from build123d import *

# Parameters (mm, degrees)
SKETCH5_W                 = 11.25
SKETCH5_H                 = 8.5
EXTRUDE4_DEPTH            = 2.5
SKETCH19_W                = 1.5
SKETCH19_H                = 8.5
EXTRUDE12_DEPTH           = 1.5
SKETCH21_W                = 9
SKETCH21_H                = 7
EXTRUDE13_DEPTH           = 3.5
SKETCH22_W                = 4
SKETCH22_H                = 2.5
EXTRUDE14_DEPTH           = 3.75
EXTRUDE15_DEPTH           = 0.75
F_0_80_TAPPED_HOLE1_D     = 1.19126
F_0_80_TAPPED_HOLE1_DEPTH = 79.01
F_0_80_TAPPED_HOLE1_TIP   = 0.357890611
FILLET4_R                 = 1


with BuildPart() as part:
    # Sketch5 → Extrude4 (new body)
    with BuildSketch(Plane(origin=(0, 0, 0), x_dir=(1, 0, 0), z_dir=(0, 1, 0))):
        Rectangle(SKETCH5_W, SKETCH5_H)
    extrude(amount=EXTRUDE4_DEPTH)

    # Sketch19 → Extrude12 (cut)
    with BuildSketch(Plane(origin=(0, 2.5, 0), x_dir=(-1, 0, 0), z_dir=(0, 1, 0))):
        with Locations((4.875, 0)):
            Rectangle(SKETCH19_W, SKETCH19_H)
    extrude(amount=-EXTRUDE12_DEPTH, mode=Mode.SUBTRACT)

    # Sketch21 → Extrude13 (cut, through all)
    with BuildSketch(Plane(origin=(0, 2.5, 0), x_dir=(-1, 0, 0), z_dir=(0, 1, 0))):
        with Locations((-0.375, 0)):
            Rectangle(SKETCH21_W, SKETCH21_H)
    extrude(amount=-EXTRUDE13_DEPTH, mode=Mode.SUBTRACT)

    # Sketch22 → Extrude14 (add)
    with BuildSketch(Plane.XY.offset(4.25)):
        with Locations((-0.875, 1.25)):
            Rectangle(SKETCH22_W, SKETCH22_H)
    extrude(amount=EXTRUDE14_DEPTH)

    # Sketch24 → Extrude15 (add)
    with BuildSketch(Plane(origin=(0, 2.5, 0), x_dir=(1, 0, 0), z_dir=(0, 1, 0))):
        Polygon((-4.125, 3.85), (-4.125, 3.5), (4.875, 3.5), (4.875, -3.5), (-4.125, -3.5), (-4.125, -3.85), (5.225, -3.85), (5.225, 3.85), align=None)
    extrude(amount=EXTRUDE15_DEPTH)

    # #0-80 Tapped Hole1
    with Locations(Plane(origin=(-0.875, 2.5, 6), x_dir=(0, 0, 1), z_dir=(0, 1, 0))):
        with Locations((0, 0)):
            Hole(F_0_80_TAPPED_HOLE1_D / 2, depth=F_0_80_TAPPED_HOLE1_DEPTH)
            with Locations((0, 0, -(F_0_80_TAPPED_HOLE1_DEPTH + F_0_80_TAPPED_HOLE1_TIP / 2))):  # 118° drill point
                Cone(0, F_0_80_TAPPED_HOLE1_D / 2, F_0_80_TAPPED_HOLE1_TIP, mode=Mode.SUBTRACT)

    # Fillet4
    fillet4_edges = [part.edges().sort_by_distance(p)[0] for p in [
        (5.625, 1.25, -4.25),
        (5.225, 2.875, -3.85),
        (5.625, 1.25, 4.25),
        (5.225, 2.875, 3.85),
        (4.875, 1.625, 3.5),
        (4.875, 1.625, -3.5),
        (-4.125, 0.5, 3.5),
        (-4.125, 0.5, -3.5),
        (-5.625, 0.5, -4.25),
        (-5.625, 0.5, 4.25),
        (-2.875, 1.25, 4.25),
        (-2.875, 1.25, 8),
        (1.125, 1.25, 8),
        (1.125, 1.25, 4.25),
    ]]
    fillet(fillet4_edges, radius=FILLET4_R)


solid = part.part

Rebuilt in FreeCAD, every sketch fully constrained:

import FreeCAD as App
import Part
import Sketcher
Q = App.Units.Quantity


def edges_at(feature, points):
    """Names of the edges that pass closest to the given points."""
    edges = feature.Shape.Edges
    near = lambda p: min(range(len(edges)), key=lambda i: edges[i].distToShape(Part.Vertex(*p))[0])
    return sorted({f"Edge{near(p) + 1}" for p in points})

doc = App.newDocument("Part")
body = doc.addObject("PartDesign::Body", "Body")

sketch1 = doc.addObject("Sketcher::SketchObject", "Sketch")
body.addObject(sketch1)
sketch1.AttachmentSupport = (doc.XZ_Plane, [""])
sketch1.MapMode = "FlatFace"
sketch1.addGeometry(Part.LineSegment(App.Vector(-6, -4, 0), App.Vector(-6, 4, 0)), False)
sketch1.addGeometry(Part.LineSegment(App.Vector(-6, 4, 0), App.Vector(6, 4, 0)), False)
sketch1.addGeometry(Part.LineSegment(App.Vector(6, 4, 0), App.Vector(6, -4, 0)), False)
sketch1.addGeometry(Part.LineSegment(App.Vector(6, -4, 0), App.Vector(-6, -4, 0)), False)
sketch1.addConstraint(Sketcher.Constraint("Coincident", 0, 2, 1, 1))
sketch1.addConstraint(Sketcher.Constraint("Coincident", 1, 2, 2, 1))
sketch1.addConstraint(Sketcher.Constraint("Coincident", 2, 2, 3, 1))
sketch1.addConstraint(Sketcher.Constraint("Coincident", 3, 2, 0, 1))
sketch1.addConstraint(Sketcher.Constraint("Vertical", 0))
sketch1.addConstraint(Sketcher.Constraint("Horizontal", 1))
sketch1.addConstraint(Sketcher.Constraint("Vertical", 2))
sketch1.addConstraint(Sketcher.Constraint("Horizontal", 3))
sketch1.addConstraint(Sketcher.Constraint("Symmetric", 0, 2, 2, 2, -1, 1))
sketch1.addConstraint(Sketcher.Constraint("DistanceY", 0, 1, 0, 2, Q("8.5 mm")))
sketch1.addConstraint(Sketcher.Constraint("DistanceX", 1, 1, 1, 2, Q("11.25 mm")))
pad1 = doc.addObject("PartDesign::Pad", "Pad")
body.addObject(pad1)
pad1.Profile = sketch1
pad1.Length = 2.5
pad1.Reversed = True

sketch2 = doc.addObject("Sketcher::SketchObject", "Sketch001")
body.addObject(sketch2)
sketch2.AttachmentSupport = (doc.XZ_Plane, [""])
sketch2.MapMode = "FlatFace"
sketch2.AttachmentOffset = App.Placement(App.Vector(0, 0, -2.5), App.Rotation())
sketch2.addGeometry(Part.LineSegment(App.Vector(-4.1, 4.2, 0), App.Vector(-4.1, -4.2, 0)), False)
sketch2.addGeometry(Part.LineSegment(App.Vector(-4.1, -4.2, 0), App.Vector(-5.6, -4.2, 0)), False)
sketch2.addGeometry(Part.LineSegment(App.Vector(-5.6, -4.2, 0), App.Vector(-5.6, 4.2, 0)), False)
sketch2.addGeometry(Part.LineSegment(App.Vector(-5.6, 4.2, 0), App.Vector(-4.1, 4.2, 0)), False)
sketch2.addConstraint(Sketcher.Constraint("Coincident", 0, 2, 1, 1))
sketch2.addConstraint(Sketcher.Constraint("Coincident", 1, 2, 2, 1))
sketch2.addConstraint(Sketcher.Constraint("Coincident", 2, 2, 3, 1))
sketch2.addConstraint(Sketcher.Constraint("Coincident", 3, 2, 0, 1))
sketch2.addConstraint(Sketcher.Constraint("Vertical", 0))
sketch2.addConstraint(Sketcher.Constraint("Horizontal", 1))
sketch2.addConstraint(Sketcher.Constraint("Vertical", 2))
sketch2.addConstraint(Sketcher.Constraint("Horizontal", 3))
sketch2.addConstraint(Sketcher.Constraint("DistanceX", 1, 2, 1, 1, Q("1.5 mm")))
sketch2.addConstraint(Sketcher.Constraint("DistanceY", 0, 2, 0, 1, Q("8.5 mm")))
sketch2.addConstraint(Sketcher.Constraint("DistanceY", 0, 2, -1, 1, Q("4.25 mm")))
sketch2.addConstraint(Sketcher.Constraint("DistanceX", 0, 2, -1, 1, Q("4.125 mm")))
pocket1 = doc.addObject("PartDesign::Pocket", "Pocket")
body.addObject(pocket1)
pocket1.Profile = sketch2
pocket1.Length = 1.5
pocket1.Reversed = True

sketch3 = doc.addObject("Sketcher::SketchObject", "Sketch002")
body.addObject(sketch3)
sketch3.AttachmentSupport = (doc.XZ_Plane, [""])
sketch3.MapMode = "FlatFace"
sketch3.AttachmentOffset = App.Placement(App.Vector(0, 0, -2.5), App.Rotation())
sketch3.addGeometry(Part.LineSegment(App.Vector(5, 4, 0), App.Vector(5, -4, 0)), False)
sketch3.addGeometry(Part.LineSegment(App.Vector(5, -4, 0), App.Vector(-4, -4, 0)), False)
sketch3.addGeometry(Part.LineSegment(App.Vector(-4, -4, 0), App.Vector(-4, 4, 0)), False)
sketch3.addGeometry(Part.LineSegment(App.Vector(-4, 4, 0), App.Vector(5, 4, 0)), False)
sketch3.addConstraint(Sketcher.Constraint("Coincident", 0, 2, 1, 1))
sketch3.addConstraint(Sketcher.Constraint("Coincident", 1, 2, 2, 1))
sketch3.addConstraint(Sketcher.Constraint("Coincident", 2, 2, 3, 1))
sketch3.addConstraint(Sketcher.Constraint("Coincident", 3, 2, 0, 1))
sketch3.addConstraint(Sketcher.Constraint("Vertical", 0))
sketch3.addConstraint(Sketcher.Constraint("Horizontal", 1))
sketch3.addConstraint(Sketcher.Constraint("Vertical", 2))
sketch3.addConstraint(Sketcher.Constraint("Horizontal", 3))
sketch3.addConstraint(Sketcher.Constraint("DistanceX", 1, 2, 1, 1, Q("9 mm")))
sketch3.addConstraint(Sketcher.Constraint("DistanceY", 0, 2, 0, 1, Q("7 mm")))
sketch3.addConstraint(Sketcher.Constraint("DistanceY", 0, 2, -1, 1, Q("3.5 mm")))
sketch3.addConstraint(Sketcher.Constraint("DistanceX", -1, 1, 0, 2, Q("4.875 mm")))
pocket2 = doc.addObject("PartDesign::Pocket", "Pocket001")
body.addObject(pocket2)
pocket2.Profile = sketch3
pocket2.Type = "ThroughAll"
pocket2.Reversed = True

sketch4 = doc.addObject("Sketcher::SketchObject", "Sketch003")
body.addObject(sketch4)
sketch4.AttachmentSupport = (doc.XY_Plane, [""])
sketch4.MapMode = "FlatFace"
sketch4.AttachmentOffset = App.Placement(App.Vector(0, 0, 4.25), App.Rotation())
sketch4.addGeometry(Part.LineSegment(App.Vector(-2.9, 2.5, 0), App.Vector(-2.9, 0, 0)), False)
sketch4.addGeometry(Part.LineSegment(App.Vector(-2.9, 0, 0), App.Vector(1.1, 0, 0)), False)
sketch4.addGeometry(Part.LineSegment(App.Vector(1.1, 0, 0), App.Vector(1.1, 2.5, 0)), False)
sketch4.addGeometry(Part.LineSegment(App.Vector(1.1, 2.5, 0), App.Vector(-2.9, 2.5, 0)), False)
sketch4.addConstraint(Sketcher.Constraint("Coincident", 0, 2, 1, 1))
sketch4.addConstraint(Sketcher.Constraint("Coincident", 1, 2, 2, 1))
sketch4.addConstraint(Sketcher.Constraint("Coincident", 2, 2, 3, 1))
sketch4.addConstraint(Sketcher.Constraint("Coincident", 3, 2, 0, 1))
sketch4.addConstraint(Sketcher.Constraint("Vertical", 0))
sketch4.addConstraint(Sketcher.Constraint("Horizontal", 1))
sketch4.addConstraint(Sketcher.Constraint("Vertical", 2))
sketch4.addConstraint(Sketcher.Constraint("Horizontal", 3))
sketch4.addConstraint(Sketcher.Constraint("PointOnObject", 0, 2, -1))
sketch4.addConstraint(Sketcher.Constraint("DistanceX", 1, 1, 1, 2, Q("4 mm")))
sketch4.addConstraint(Sketcher.Constraint("DistanceY", 0, 2, 0, 1, Q("2.5 mm")))
sketch4.addConstraint(Sketcher.Constraint("DistanceX", 0, 2, -1, 1, Q("2.875 mm")))
pad2 = doc.addObject("PartDesign::Pad", "Pad001")
body.addObject(pad2)
pad2.Profile = sketch4
pad2.Length = 3.75

sketch5 = doc.addObject("Sketcher::SketchObject", "Sketch004")
body.addObject(sketch5)
sketch5.AttachmentSupport = (doc.XZ_Plane, [""])
sketch5.MapMode = "FlatFace"
sketch5.AttachmentOffset = App.Placement(App.Vector(0, 0, -2.5), App.Rotation())
sketch5.addGeometry(Part.LineSegment(App.Vector(-4.12, -3.85, 0), App.Vector(-4.12, -3.5, 0)), False)
sketch5.addGeometry(Part.LineSegment(App.Vector(-4.12, -3.5, 0), App.Vector(4.88, -3.5, 0)), False)
sketch5.addGeometry(Part.LineSegment(App.Vector(4.88, -3.5, 0), App.Vector(4.88, 3.5, 0)), False)
sketch5.addGeometry(Part.LineSegment(App.Vector(4.88, 3.5, 0), App.Vector(-4.12, 3.5, 0)), False)
sketch5.addGeometry(Part.LineSegment(App.Vector(-4.12, 3.5, 0), App.Vector(-4.12, 3.85, 0)), False)
sketch5.addGeometry(Part.LineSegment(App.Vector(-4.12, 3.85, 0), App.Vector(5.22, 3.85, 0)), False)
sketch5.addGeometry(Part.LineSegment(App.Vector(5.22, 3.85, 0), App.Vector(5.22, -3.85, 0)), False)
sketch5.addGeometry(Part.LineSegment(App.Vector(5.22, -3.85, 0), App.Vector(-4.12, -3.85, 0)), False)
sketch5.addConstraint(Sketcher.Constraint("Coincident", 0, 2, 1, 1))
sketch5.addConstraint(Sketcher.Constraint("Coincident", 1, 2, 2, 1))
sketch5.addConstraint(Sketcher.Constraint("Coincident", 2, 2, 3, 1))
sketch5.addConstraint(Sketcher.Constraint("Coincident", 3, 2, 4, 1))
sketch5.addConstraint(Sketcher.Constraint("Coincident", 4, 2, 5, 1))
sketch5.addConstraint(Sketcher.Constraint("Coincident", 5, 2, 6, 1))
sketch5.addConstraint(Sketcher.Constraint("Coincident", 6, 2, 7, 1))
sketch5.addConstraint(Sketcher.Constraint("Coincident", 7, 2, 0, 1))
sketch5.addConstraint(Sketcher.Constraint("Vertical", 0))
sketch5.addConstraint(Sketcher.Constraint("Horizontal", 1))
sketch5.addConstraint(Sketcher.Constraint("Vertical", 2))
sketch5.addConstraint(Sketcher.Constraint("Horizontal", 3))
sketch5.addConstraint(Sketcher.Constraint("Vertical", 4))
sketch5.addConstraint(Sketcher.Constraint("Horizontal", 5))
sketch5.addConstraint(Sketcher.Constraint("Vertical", 6))
sketch5.addConstraint(Sketcher.Constraint("Horizontal", 7))
sketch5.addConstraint(Sketcher.Constraint("Symmetric", 0, 2, 3, 2, -1))
sketch5.addConstraint(Sketcher.Constraint("Equal", 0, 4))
sketch5.addConstraint(Sketcher.Constraint("DistanceX", 1, 1, 1, 2, Q("9 mm")))
sketch5.addConstraint(Sketcher.Constraint("DistanceY", 2, 1, 2, 2, Q("7 mm")))
sketch5.addConstraint(Sketcher.Constraint("DistanceY", 6, 2, 6, 1, Q("7.7 mm")))
sketch5.addConstraint(Sketcher.Constraint("DistanceX", 5, 1, 5, 2, Q("9.35 mm")))
sketch5.addConstraint(Sketcher.Constraint("DistanceX", 0, 2, -1, 1, Q("4.125 mm")))
pad3 = doc.addObject("PartDesign::Pad", "Pad002")
body.addObject(pad3)
pad3.Profile = sketch5
pad3.Length = 0.75
pad3.Reversed = True

sketch6 = doc.addObject("Sketcher::SketchObject", "Sketch005")
body.addObject(sketch6)
sketch6.AttachmentSupport = (doc.XZ_Plane, [""])
sketch6.MapMode = "FlatFace"
sketch6.AttachmentOffset = App.Placement(App.Vector(0, 0, -2.5), App.Rotation())
sketch6.addGeometry(Part.Circle(App.Vector(-0.9, 6, 0), App.Vector(0, 0, 1), 0.6), False)
sketch6.addConstraint(Sketcher.Constraint("DistanceY", -1, 1, 0, 3, Q("6 mm")))
sketch6.addConstraint(Sketcher.Constraint("Diameter", 0, Q("1.19126 mm")))
sketch6.addConstraint(Sketcher.Constraint("DistanceX", 0, 3, -1, 1, Q("0.875 mm")))
doc.recompute()
hole = doc.addObject("PartDesign::Hole", "Hole")
body.addObject(hole)
hole.Profile = sketch6
hole.ThreadType = "None"
hole.Diameter = 1.19126
hole.DepthType = "Dimension"
hole.Depth = 79.01
hole.DrillPoint = "Angled"
hole.DrillPointAngle = 118
hole.Reversed = True
doc.recompute()

fillet = doc.addObject("PartDesign::Fillet", "Fillet")
body.addObject(fillet)
fillet.Base = (hole, edges_at(hole, [
    (5.625, 1.25, -4.25),
    (5.225, 2.875, -3.85),
    (5.625, 1.25, 4.25),
    (5.225, 2.875, 3.85),
    (4.875, 1.625, 3.5),
    (4.875, 1.625, -3.5),
    (-4.125, 0.5, 3.5),
    (-4.125, 0.5, -3.5),
    (-5.625, 0.5, -4.25),
    (-5.625, 0.5, 4.25),
    (-2.875, 1.25, 4.25),
    (-2.875, 1.25, 8),
    (1.125, 1.25, 8),
    (1.125, 1.25, 4.25),
]))
fillet.Radius = 1

doc.recompute()
